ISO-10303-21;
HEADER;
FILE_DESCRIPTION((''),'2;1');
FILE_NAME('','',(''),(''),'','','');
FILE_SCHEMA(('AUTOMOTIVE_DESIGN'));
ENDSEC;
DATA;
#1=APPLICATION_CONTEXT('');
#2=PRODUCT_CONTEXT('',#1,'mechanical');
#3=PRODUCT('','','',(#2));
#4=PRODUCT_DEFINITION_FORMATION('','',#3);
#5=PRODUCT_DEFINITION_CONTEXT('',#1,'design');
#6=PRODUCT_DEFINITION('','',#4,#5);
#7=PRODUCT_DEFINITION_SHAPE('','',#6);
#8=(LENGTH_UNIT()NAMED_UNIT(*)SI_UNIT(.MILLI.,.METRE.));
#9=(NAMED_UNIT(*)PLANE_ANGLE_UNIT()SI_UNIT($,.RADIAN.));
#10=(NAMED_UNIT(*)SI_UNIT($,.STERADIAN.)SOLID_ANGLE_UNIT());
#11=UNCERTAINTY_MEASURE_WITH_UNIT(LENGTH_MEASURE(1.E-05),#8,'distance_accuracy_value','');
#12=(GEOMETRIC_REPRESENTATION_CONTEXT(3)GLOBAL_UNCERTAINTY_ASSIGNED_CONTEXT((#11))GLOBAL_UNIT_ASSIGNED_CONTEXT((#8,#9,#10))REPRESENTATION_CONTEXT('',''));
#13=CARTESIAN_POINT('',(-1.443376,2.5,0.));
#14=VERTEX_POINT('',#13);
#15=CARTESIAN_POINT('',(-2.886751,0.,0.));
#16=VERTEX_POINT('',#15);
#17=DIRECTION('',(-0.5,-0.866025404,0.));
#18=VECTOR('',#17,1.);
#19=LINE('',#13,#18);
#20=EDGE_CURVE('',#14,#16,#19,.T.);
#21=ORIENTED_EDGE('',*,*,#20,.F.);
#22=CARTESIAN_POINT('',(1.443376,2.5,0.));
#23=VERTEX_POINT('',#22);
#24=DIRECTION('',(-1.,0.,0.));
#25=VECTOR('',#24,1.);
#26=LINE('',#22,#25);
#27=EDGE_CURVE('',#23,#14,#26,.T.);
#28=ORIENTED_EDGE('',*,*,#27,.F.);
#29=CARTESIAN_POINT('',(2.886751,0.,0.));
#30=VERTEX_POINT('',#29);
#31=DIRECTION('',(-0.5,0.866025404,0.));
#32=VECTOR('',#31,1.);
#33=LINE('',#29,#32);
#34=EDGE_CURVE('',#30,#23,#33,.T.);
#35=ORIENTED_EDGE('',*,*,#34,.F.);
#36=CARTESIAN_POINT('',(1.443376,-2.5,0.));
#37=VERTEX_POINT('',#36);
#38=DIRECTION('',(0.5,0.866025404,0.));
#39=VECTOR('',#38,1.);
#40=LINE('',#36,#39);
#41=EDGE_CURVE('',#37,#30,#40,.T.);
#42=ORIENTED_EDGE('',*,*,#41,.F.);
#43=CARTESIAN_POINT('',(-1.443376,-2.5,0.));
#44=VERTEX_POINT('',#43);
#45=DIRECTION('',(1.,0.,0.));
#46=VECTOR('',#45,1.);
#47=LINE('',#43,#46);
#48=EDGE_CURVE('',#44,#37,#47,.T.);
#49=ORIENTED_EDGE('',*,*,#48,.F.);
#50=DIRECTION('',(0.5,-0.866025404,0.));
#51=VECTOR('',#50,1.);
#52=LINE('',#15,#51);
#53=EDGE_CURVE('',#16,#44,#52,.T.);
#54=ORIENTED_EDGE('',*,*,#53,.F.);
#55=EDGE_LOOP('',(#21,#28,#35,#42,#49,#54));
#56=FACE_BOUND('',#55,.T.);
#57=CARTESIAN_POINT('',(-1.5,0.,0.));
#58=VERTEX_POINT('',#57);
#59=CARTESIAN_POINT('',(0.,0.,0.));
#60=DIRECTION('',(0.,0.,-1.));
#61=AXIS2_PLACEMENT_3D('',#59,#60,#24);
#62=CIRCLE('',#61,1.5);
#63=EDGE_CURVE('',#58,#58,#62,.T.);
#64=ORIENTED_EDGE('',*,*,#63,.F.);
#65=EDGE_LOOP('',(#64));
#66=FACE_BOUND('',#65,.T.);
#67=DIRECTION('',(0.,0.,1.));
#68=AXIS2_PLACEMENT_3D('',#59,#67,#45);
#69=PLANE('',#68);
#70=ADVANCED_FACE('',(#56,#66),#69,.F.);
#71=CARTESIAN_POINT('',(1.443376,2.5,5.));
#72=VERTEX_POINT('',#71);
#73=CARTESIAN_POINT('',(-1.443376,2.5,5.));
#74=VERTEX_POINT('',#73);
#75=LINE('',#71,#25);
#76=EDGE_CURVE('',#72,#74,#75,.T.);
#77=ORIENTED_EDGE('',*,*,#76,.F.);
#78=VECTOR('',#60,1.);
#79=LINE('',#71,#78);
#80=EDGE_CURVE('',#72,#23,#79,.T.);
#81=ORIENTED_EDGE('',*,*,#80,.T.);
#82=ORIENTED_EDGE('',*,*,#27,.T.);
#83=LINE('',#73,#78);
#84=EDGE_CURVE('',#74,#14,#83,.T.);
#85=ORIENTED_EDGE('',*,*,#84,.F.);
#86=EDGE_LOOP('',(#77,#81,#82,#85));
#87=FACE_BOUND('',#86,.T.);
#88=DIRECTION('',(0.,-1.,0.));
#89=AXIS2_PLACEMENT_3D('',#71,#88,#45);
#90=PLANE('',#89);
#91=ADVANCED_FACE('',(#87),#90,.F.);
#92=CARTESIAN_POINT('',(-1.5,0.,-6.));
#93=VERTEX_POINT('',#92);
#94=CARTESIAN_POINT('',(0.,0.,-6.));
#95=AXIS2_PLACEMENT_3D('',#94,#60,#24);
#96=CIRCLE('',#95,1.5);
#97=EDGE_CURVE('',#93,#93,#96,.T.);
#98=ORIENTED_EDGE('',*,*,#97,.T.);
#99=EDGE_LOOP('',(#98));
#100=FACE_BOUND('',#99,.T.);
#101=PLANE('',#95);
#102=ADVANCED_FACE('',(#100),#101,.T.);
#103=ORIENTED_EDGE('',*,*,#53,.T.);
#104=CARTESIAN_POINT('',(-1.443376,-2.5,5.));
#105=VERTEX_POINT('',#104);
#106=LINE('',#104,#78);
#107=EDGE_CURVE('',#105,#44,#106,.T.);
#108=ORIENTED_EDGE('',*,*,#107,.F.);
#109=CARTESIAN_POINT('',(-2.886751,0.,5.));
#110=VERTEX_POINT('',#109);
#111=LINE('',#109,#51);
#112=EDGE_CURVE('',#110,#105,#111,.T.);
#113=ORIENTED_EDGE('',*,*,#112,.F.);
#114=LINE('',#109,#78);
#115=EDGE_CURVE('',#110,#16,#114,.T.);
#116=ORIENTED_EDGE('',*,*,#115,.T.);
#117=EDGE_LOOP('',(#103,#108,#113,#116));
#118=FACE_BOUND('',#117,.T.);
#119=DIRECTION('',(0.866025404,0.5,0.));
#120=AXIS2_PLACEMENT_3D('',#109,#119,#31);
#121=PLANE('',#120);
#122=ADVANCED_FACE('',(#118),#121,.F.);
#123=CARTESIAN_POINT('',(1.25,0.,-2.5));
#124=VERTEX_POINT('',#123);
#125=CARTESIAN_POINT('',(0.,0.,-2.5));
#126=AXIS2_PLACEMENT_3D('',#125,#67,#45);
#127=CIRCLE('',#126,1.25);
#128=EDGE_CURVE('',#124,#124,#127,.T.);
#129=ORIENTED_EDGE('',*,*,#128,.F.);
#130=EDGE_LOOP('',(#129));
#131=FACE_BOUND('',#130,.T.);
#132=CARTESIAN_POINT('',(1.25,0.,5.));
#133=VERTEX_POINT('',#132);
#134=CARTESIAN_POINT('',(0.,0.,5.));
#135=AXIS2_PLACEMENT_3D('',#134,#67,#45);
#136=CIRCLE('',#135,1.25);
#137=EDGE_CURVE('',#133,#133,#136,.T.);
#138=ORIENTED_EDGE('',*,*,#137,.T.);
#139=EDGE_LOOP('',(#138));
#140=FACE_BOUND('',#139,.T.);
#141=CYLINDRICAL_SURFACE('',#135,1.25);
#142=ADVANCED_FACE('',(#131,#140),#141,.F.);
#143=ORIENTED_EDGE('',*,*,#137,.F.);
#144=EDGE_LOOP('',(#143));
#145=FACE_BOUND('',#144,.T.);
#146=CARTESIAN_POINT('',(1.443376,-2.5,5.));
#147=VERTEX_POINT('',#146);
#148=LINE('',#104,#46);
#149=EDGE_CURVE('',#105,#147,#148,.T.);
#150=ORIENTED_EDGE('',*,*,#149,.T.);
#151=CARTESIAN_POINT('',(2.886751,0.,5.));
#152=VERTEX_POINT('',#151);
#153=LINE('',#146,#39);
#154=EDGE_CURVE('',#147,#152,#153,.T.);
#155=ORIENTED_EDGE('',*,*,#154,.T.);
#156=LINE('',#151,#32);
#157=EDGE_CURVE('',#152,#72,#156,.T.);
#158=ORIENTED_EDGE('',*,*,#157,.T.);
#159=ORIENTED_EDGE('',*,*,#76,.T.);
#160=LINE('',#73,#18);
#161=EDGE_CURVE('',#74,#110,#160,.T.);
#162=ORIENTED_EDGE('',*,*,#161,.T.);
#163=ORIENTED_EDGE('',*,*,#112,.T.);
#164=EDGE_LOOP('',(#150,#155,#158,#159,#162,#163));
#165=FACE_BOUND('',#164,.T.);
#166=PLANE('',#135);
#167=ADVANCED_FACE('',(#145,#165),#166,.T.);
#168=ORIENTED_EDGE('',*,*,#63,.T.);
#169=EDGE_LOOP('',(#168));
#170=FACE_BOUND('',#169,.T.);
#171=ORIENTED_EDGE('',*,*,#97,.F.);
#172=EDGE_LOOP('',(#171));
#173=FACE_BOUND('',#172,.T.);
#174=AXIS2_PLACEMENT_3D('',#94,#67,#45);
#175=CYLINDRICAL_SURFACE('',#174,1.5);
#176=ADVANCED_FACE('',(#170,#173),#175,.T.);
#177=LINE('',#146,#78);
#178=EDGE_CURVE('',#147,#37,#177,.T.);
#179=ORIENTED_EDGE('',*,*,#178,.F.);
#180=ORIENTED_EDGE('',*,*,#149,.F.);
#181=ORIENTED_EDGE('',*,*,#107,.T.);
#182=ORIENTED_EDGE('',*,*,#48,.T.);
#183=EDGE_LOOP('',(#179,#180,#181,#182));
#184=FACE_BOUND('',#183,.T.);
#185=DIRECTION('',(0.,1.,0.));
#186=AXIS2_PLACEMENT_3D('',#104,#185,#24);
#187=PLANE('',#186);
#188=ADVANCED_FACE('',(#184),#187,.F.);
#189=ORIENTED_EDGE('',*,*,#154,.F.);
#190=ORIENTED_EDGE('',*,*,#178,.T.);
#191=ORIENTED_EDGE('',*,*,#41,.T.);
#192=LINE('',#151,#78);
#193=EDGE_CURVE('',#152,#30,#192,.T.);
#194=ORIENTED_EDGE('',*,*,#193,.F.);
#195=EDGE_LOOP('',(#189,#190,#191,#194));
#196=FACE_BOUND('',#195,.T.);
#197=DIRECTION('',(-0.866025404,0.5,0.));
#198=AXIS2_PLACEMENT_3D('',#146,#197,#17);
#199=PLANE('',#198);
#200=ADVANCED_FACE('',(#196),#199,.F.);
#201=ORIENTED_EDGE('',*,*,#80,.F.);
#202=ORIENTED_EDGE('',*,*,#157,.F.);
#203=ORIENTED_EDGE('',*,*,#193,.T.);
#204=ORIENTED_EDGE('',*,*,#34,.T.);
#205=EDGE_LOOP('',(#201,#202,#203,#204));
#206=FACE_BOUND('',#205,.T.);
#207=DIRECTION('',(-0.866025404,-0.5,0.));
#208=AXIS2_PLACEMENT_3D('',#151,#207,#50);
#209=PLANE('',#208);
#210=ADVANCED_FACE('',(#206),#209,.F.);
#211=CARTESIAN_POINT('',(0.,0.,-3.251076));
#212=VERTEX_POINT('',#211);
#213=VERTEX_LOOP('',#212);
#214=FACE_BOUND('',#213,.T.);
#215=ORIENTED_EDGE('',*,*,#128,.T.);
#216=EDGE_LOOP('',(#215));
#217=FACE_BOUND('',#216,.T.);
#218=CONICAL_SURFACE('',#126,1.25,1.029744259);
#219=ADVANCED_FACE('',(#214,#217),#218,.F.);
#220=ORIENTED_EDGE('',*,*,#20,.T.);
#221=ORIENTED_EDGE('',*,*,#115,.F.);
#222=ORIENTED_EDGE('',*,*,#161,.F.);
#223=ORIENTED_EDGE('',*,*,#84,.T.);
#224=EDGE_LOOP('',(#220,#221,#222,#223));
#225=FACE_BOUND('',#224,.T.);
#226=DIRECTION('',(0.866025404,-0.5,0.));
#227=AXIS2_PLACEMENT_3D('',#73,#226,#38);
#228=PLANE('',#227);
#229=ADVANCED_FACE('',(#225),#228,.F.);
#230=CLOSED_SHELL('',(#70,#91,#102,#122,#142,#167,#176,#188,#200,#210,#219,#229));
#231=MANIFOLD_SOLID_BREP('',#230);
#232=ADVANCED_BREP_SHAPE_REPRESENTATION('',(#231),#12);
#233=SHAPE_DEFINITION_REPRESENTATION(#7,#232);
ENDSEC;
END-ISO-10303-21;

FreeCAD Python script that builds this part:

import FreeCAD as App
import Part
import Sketcher

V = App.Vector
Q = App.Units.Quantity

doc = App.newDocument("Part")
params = doc.addObject("Spreadsheet::Sheet", "Params")
for row, (alias, value) in enumerate([
    ("pad1_length", "5 mm"),
    ("sketch2_diameter", "3 mm"),
    ("pad2_length", "6 mm"),
    ("sketch3_diameter", "2.5 mm"),
    ("hole_diameter", "2.5 mm"),
    ("hole_depth", "7.5 mm"),
], start=1):
    params.set(f"A{row}", alias)
    params.set(f"B{row}", "=" + value)
    params.setAlias(f"B{row}", alias)

body = doc.addObject("PartDesign::Body", "Body")

# Sketch on XY plane
sketch1 = body.newObject("Sketcher::SketchObject", "Sketch")
sketch1.AttachmentSupport = (doc.getObject("XY_Plane"), [""])
sketch1.MapMode = "FlatFace"
sketch1.addGeometry([
    Part.LineSegment(V(-1.4, 2.5, 0), V(-2.9, 0, 0)),  # 0
    Part.LineSegment(V(-2.9, 0, 0), V(-1.4, -2.5, 0)),  # 1
    Part.LineSegment(V(-1.4, -2.5, 0), V(1.4, -2.5, 0)),  # 2
    Part.LineSegment(V(1.4, -2.5, 0), V(2.9, 0, 0)),  # 3
    Part.LineSegment(V(2.9, 0, 0), V(1.4, 2.5, 0)),  # 4
    Part.LineSegment(V(1.4, 2.5, 0), V(-1.4, 2.5, 0)),  # 5
], False)
sketch1.addConstraint([
    Sketcher.Constraint("Coincident", 0, 2, 1, 1),
    Sketcher.Constraint("Coincident", 1, 2, 2, 1),
    Sketcher.Constraint("Coincident", 2, 2, 3, 1),
    Sketcher.Constraint("Coincident", 3, 2, 4, 1),
    Sketcher.Constraint("Coincident", 4, 2, 5, 1),
    Sketcher.Constraint("Coincident", 5, 2, 0, 1),
    Sketcher.Constraint("Horizontal", 2),
    Sketcher.Constraint("Horizontal", 5),
    Sketcher.Constraint("Symmetric", 0, 2, 3, 2, -1, 1),
    Sketcher.Constraint("Symmetric", 1, 2, 4, 2, -1, 1),
    Sketcher.Constraint("PointOnObject", 0, 2, -1),
    Sketcher.Constraint("Parallel", 0, 3),
    Sketcher.Constraint("Vertical", 2, 2, 4, 2),
    Sketcher.Constraint("Angle", 0, Q("-120 deg")),
    Sketcher.Constraint("DistanceY", 2, 2, 4, 2, 5.0),
    Sketcher.Constraint("DistanceX", 2, 1, 2, 2, 2.886751),
])
pad1 = body.newObject("PartDesign::Pad", "Pad")
pad1.Profile = sketch1
pad1.setExpression("Length", "Params.pad1_length")

# Sketch on XY plane
sketch2 = body.newObject("Sketcher::SketchObject", "Sketch001")
sketch2.AttachmentSupport = (doc.getObject("XY_Plane"), [""])
sketch2.MapMode = "FlatFace"
sketch2.addGeometry(Part.Circle(V(0, 0, 0), V(0, 0, 1), 1.5), False)
sketch2.addConstraint([
    Sketcher.Constraint("Coincident", 0, 3, -1, 1),
    Sketcher.Constraint("Diameter", 0, 3.0),
])
sketch2.setExpression("Constraints[1]", "Params.sketch2_diameter")
pad2 = body.newObject("PartDesign::Pad", "Pad001")
pad2.Profile = sketch2
pad2.setExpression("Length", "Params.pad2_length")
pad2.Reversed = True

# Sketch on XY plane
sketch3 = body.newObject("Sketcher::SketchObject", "Sketch002")
sketch3.AttachmentSupport = (doc.getObject("XY_Plane"), [""])
sketch3.MapMode = "FlatFace"
sketch3.AttachmentOffset = App.Placement(V(0, 0, 5), App.Rotation())
sketch3.addGeometry(Part.Circle(V(0, 0, 0), V(0, 0, 1), 1.2), False)
sketch3.addConstraint([
    Sketcher.Constraint("Coincident", 0, 3, -1, 1),
    Sketcher.Constraint("Diameter", 0, 2.5),
])
sketch3.setExpression("Constraints[1]", "Params.sketch3_diameter")
doc.recompute()
hole = body.newObject("PartDesign::Hole", "Hole")
hole.Profile = sketch3
hole.ThreadType = "None"
hole.setExpression("Diameter", "Params.hole_diameter")
hole.DepthType = "Dimension"
hole.setExpression("Depth", "Params.hole_depth")
hole.DrillPoint = "Angled"
hole.DrillPointAngle = 118

doc.recompute()
